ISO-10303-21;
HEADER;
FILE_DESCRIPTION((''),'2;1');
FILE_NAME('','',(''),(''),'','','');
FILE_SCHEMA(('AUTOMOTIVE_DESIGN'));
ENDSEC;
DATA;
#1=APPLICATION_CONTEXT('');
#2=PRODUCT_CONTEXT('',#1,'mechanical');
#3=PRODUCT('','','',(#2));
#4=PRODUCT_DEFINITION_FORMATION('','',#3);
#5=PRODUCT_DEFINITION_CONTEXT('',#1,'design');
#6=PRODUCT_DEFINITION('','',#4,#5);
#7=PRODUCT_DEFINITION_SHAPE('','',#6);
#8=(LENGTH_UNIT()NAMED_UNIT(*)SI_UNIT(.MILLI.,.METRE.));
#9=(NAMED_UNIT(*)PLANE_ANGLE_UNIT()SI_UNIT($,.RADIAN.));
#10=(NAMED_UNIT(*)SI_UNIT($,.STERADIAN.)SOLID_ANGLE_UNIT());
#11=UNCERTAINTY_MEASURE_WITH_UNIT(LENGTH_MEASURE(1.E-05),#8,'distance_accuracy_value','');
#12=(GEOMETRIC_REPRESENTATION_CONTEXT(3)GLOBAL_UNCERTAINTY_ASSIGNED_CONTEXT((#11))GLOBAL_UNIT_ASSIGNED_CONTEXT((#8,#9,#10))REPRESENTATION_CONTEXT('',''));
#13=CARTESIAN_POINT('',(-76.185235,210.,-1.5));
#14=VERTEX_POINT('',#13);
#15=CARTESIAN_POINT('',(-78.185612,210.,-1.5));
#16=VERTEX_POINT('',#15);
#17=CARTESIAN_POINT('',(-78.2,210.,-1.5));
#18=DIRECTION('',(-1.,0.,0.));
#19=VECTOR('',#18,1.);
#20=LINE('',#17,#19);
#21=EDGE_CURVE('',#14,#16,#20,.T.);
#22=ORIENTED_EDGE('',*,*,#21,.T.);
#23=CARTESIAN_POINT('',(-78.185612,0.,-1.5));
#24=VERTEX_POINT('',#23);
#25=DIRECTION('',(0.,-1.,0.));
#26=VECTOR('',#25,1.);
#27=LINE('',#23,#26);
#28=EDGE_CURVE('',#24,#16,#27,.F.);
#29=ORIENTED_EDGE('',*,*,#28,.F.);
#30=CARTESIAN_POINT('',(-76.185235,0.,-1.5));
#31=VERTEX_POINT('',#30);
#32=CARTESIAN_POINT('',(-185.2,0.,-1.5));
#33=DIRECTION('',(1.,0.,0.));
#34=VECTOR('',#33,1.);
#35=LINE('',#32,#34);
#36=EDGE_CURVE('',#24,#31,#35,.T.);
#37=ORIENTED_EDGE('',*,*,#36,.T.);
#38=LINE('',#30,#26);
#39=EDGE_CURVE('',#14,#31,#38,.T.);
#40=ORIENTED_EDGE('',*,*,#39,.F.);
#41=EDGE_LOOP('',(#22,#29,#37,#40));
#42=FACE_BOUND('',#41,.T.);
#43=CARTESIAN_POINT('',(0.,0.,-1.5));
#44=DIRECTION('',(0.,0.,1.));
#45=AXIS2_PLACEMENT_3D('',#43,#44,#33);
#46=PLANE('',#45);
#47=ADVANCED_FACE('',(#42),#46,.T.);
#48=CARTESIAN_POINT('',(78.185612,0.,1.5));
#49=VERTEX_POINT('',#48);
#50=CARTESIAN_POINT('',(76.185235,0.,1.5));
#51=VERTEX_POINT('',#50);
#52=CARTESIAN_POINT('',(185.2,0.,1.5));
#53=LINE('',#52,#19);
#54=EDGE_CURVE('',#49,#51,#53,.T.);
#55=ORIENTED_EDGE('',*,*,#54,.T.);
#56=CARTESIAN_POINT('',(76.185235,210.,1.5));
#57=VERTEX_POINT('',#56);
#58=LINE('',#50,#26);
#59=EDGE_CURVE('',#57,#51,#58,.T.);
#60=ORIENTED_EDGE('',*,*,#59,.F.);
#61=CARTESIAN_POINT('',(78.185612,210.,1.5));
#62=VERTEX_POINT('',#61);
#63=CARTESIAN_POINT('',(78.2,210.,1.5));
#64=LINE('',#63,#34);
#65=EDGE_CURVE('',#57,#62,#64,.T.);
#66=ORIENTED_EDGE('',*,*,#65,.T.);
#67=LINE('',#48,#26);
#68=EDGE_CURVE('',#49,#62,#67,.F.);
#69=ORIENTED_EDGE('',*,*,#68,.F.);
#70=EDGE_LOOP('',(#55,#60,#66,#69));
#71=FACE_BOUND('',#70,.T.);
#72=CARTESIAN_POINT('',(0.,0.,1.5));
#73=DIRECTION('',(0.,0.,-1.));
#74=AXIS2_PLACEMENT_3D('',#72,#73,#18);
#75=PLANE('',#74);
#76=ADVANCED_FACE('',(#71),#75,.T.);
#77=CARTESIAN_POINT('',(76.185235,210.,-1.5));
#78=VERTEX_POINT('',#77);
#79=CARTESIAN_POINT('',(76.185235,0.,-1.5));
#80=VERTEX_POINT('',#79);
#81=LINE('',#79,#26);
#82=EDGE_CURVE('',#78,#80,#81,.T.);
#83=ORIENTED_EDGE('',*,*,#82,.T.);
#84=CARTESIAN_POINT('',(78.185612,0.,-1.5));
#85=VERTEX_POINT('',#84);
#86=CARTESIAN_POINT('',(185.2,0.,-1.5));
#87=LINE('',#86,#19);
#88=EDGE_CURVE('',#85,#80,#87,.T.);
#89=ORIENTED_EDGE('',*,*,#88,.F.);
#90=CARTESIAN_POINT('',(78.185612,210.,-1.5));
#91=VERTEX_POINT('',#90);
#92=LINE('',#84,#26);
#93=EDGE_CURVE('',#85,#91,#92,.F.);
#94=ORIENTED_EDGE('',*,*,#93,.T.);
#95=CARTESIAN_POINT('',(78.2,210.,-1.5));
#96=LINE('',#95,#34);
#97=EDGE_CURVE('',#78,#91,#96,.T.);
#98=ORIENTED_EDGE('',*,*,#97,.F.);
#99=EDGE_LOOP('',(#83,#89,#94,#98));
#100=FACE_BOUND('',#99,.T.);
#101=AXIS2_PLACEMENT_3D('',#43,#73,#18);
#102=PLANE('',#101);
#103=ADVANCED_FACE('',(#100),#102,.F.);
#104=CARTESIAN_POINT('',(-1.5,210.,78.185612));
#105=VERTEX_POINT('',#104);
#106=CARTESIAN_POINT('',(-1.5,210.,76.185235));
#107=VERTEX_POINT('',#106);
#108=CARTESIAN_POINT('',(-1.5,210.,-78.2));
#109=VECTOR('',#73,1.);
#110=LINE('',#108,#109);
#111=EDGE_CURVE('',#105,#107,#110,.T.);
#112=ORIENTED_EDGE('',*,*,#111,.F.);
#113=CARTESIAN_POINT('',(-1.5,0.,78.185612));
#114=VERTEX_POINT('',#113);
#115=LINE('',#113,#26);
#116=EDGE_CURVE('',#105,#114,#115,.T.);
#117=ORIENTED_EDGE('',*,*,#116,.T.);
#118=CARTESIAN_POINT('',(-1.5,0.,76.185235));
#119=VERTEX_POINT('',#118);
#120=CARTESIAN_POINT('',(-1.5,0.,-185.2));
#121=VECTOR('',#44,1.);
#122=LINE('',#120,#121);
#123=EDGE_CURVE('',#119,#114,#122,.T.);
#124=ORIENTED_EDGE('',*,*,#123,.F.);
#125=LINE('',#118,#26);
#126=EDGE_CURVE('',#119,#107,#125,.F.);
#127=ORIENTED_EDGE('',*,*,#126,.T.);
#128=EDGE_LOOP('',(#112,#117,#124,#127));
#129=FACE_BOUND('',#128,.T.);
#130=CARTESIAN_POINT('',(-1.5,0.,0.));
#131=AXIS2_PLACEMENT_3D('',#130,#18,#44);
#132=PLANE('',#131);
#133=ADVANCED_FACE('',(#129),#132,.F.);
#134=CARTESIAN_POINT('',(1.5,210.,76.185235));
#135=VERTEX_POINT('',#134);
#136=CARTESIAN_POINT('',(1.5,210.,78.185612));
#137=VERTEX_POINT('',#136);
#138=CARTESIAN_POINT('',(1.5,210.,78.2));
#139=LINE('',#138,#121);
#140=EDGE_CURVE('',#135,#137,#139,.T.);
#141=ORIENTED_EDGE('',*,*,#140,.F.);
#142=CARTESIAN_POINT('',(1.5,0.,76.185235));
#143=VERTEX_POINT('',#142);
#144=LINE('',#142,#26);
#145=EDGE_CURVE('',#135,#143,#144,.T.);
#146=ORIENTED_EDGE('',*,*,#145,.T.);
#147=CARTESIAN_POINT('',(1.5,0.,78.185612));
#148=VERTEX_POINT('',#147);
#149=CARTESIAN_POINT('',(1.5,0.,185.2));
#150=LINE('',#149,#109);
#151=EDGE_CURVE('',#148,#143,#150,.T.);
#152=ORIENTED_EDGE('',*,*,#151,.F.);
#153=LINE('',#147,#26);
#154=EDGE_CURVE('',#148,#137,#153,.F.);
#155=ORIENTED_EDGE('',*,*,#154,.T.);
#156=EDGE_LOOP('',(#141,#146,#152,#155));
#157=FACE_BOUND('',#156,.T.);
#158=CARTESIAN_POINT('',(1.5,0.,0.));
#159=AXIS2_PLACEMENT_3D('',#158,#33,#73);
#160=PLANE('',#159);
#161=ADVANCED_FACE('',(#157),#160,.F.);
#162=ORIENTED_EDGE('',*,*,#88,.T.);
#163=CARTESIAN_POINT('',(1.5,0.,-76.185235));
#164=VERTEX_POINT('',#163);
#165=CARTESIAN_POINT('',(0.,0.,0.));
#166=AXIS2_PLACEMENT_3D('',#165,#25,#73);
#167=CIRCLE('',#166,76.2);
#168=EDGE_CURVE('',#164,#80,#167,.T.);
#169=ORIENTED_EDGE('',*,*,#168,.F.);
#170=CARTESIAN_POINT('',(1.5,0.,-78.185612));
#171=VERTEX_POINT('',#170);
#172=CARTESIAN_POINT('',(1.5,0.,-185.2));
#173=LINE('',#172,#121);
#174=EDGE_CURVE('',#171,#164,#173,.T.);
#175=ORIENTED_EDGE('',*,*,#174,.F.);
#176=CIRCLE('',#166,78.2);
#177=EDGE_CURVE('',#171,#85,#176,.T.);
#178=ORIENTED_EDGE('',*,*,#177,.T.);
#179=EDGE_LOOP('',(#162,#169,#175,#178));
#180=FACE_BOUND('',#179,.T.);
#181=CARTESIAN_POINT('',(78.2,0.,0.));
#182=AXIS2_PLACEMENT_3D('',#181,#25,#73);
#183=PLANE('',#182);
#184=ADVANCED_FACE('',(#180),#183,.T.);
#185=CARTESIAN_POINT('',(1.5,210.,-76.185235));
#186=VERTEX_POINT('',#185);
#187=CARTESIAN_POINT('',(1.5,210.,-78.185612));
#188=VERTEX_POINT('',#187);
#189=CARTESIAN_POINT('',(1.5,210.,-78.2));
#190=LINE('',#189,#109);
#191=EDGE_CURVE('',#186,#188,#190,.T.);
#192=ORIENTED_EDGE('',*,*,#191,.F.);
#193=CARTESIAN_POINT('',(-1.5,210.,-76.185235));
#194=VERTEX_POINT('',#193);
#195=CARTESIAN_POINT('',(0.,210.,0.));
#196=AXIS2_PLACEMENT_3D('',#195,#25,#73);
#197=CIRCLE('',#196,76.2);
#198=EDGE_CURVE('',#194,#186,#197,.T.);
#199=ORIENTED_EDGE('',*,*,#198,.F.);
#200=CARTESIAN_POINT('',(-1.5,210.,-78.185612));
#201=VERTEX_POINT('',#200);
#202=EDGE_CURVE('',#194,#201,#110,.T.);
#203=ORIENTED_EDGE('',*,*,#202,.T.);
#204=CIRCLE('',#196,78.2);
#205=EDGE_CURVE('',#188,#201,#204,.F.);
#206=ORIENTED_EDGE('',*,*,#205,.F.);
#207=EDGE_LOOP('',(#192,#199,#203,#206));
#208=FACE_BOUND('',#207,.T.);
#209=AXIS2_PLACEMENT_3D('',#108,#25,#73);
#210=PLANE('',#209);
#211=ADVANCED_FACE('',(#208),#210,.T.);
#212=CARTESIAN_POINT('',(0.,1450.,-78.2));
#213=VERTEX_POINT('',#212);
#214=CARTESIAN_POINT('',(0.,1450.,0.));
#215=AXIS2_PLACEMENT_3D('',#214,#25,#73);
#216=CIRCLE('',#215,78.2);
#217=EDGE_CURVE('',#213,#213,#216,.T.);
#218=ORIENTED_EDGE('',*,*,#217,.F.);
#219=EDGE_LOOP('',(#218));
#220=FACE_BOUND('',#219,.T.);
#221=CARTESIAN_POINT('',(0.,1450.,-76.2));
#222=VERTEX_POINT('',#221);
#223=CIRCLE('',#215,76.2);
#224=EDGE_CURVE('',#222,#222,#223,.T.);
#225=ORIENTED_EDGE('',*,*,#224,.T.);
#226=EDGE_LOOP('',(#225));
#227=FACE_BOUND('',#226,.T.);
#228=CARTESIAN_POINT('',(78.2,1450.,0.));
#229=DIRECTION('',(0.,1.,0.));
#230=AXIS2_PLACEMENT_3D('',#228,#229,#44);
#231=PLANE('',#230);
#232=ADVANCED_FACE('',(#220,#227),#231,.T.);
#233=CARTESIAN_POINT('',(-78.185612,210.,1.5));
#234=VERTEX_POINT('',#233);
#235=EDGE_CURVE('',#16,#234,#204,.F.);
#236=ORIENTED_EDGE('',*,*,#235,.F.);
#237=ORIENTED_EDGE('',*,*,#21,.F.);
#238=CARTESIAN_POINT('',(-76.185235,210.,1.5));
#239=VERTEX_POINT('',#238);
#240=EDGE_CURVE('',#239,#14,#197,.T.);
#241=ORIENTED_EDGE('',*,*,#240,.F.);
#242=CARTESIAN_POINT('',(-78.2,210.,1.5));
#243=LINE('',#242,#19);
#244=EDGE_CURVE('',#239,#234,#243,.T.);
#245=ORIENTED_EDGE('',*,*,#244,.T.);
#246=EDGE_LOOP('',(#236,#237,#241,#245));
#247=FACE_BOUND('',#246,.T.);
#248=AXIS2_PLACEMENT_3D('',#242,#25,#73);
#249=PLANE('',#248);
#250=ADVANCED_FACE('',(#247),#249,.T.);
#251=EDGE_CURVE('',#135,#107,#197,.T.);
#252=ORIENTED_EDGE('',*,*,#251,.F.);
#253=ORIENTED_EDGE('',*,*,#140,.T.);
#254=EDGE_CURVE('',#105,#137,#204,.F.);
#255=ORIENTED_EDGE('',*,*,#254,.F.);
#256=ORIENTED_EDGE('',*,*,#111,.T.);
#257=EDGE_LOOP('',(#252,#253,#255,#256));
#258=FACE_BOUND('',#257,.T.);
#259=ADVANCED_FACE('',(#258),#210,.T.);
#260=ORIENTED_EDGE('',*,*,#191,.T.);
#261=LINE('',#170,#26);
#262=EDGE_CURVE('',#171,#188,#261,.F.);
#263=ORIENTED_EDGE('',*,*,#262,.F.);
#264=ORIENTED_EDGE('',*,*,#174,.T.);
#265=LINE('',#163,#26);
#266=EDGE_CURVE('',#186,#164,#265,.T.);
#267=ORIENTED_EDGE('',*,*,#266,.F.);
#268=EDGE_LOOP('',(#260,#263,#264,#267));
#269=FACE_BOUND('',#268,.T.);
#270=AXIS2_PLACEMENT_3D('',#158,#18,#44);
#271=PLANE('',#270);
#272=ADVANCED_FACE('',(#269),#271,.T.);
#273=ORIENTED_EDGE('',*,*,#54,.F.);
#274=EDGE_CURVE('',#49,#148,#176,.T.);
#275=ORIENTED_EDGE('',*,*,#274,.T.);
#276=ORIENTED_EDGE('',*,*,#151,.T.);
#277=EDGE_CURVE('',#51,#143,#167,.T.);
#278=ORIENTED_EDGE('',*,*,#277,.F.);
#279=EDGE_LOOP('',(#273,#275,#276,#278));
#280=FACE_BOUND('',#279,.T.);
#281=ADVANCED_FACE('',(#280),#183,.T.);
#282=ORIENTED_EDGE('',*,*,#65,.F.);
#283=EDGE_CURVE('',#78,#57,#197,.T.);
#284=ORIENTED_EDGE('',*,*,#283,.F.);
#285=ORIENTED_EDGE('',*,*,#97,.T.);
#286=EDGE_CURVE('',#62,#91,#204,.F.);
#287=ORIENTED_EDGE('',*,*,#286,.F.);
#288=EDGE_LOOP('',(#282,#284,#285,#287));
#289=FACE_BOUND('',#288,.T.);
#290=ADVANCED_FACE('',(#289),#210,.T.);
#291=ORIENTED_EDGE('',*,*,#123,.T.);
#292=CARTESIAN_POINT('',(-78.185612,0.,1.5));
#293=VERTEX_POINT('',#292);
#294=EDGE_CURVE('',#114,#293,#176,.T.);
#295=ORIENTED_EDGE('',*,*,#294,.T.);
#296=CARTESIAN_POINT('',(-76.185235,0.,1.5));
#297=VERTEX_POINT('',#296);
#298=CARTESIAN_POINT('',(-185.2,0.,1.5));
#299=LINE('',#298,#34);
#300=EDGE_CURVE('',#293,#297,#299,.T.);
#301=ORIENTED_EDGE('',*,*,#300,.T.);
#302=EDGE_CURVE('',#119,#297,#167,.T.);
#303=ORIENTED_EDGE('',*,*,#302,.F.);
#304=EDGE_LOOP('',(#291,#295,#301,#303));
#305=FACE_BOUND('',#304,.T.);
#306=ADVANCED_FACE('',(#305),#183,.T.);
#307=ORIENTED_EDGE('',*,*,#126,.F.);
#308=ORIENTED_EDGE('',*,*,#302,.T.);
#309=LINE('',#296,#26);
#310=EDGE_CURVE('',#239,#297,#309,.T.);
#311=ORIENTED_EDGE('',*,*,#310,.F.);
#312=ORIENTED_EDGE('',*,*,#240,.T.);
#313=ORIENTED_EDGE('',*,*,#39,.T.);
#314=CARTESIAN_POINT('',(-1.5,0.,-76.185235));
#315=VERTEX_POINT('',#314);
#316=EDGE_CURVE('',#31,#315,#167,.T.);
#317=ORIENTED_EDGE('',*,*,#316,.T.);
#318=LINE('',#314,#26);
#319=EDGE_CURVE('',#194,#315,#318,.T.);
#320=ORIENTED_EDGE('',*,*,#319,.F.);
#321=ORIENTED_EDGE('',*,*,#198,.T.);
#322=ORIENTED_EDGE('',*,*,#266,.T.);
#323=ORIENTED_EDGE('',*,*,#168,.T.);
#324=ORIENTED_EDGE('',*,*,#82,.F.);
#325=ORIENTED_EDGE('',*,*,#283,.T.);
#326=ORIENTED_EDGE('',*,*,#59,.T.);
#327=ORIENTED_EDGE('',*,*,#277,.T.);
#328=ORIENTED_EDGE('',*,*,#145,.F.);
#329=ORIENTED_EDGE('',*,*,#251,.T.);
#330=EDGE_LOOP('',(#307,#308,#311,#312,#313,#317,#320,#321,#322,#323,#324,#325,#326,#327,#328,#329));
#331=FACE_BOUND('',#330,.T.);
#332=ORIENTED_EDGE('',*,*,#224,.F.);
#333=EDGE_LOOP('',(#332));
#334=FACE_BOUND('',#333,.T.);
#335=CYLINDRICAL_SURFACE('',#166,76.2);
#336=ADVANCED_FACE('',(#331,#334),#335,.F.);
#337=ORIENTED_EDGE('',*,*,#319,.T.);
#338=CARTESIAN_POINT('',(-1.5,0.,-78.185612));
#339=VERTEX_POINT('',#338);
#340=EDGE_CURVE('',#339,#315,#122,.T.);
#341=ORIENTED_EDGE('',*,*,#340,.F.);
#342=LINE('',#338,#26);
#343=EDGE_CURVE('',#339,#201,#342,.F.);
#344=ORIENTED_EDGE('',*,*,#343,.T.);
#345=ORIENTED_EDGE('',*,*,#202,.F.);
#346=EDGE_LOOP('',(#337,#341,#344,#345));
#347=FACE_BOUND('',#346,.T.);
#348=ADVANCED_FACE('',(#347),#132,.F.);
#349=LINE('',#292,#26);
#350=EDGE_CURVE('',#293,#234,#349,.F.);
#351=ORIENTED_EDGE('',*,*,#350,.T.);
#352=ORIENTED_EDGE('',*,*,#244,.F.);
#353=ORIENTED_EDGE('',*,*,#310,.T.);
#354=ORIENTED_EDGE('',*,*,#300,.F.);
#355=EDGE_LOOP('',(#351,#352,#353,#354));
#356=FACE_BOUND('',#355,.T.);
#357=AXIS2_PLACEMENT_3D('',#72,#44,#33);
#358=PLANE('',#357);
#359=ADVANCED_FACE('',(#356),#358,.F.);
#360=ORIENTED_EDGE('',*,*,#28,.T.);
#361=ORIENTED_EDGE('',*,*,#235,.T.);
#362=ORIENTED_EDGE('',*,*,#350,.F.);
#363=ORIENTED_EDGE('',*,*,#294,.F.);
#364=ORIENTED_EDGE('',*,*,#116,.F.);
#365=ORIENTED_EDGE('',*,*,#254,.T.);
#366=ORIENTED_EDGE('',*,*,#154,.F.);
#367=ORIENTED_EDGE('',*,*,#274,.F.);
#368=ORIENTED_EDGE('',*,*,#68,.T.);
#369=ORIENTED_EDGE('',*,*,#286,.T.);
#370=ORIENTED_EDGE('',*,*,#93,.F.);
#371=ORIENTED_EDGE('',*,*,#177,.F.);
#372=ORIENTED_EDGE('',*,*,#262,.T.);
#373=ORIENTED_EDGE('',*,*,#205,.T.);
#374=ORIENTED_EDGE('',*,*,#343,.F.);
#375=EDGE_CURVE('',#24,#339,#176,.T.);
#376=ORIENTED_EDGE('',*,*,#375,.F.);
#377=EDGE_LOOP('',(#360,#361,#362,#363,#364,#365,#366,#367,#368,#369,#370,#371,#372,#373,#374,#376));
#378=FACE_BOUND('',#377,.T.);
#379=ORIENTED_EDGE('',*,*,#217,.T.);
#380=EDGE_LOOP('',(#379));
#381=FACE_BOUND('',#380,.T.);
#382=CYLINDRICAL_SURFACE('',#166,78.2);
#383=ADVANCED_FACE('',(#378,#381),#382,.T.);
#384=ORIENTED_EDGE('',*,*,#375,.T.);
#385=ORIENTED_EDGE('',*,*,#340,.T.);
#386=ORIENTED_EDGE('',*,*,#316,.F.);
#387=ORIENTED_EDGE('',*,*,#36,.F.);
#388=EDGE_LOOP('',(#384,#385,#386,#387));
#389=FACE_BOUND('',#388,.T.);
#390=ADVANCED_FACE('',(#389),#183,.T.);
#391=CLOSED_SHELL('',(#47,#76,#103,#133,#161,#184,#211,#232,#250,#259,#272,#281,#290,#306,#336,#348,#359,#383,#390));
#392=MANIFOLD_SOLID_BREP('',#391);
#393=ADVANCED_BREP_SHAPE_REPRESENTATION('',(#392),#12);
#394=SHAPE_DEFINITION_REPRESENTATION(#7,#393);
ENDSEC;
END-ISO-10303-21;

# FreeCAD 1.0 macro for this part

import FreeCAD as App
import Part
import Sketcher
from FreeCAD import Vector


def add_polygon(sketch, points):
    """Adds a closed chain of lines whose ends are joined by coincident constraints."""
    first, n = sketch.GeometryCount, len(points)
    for a, b in zip(points, points[1:] + points[:1]):
        sketch.addGeometry(Part.LineSegment(App.Vector(*a, 0), App.Vector(*b, 0)), False)
    for i in range(n):
        sketch.addConstraint(Sketcher.Constraint("Coincident", first + i, 2, first + (i + 1) % n, 1))

doc = App.newDocument("Part")
body = doc.addObject("PartDesign::Body", "Body")

# Sketch on XY plane
sketch1 = doc.addObject("Sketcher::SketchObject", "Sketch")
body.addObject(sketch1)
sketch1.AttachmentSupport = (doc.XY_Plane, [""])
sketch1.MapMode = "FlatFace"
add_polygon(sketch1, [(76.2, 1450), (76.2, 0), (78.2, 0), (78.2, 1450)])  # lines 0-3
sketch1.addConstraint(Sketcher.Constraint("Vertical", 0))
sketch1.addConstraint(Sketcher.Constraint("Horizontal", 1))
sketch1.addConstraint(Sketcher.Constraint("Vertical", 2))
sketch1.addConstraint(Sketcher.Constraint("Horizontal", 3))
sketch1.addConstraint(Sketcher.Constraint("PointOnObject", 0, 2, -1))
sketch1.addConstraint(Sketcher.Constraint("DistanceX", 1, 1, 1, 2, 2.0))
sketch1.addConstraint(Sketcher.Constraint("DistanceY", 0, 2, 0, 1, 1450.0))
sketch1.addConstraint(Sketcher.Constraint("DistanceX", -1, 1, 0, 2, 76.2))
revolution = doc.addObject("PartDesign::Revolution", "Revolution")
body.addObject(revolution)
revolution.Profile = sketch1
revolution.ReferenceAxis = (sketch1, ["V_Axis"])
revolution.Angle = 360

# Sketch on XY plane
sketch2 = doc.addObject("Sketcher::SketchObject", "Sketch001")
body.addObject(sketch2)
sketch2.AttachmentSupport = (doc.XY_Plane, [""])
sketch2.MapMode = "FlatFace"
add_polygon(sketch2, [(-185, 150), (-185, 0), (0, 0), (0, 210), (-78, 210)])  # lines 0-4
sketch2.addConstraint(Sketcher.Constraint("Vertical", 0))
sketch2.addConstraint(Sketcher.Constraint("Horizontal", 1))
sketch2.addConstraint(Sketcher.Constraint("Vertical", 2))
sketch2.addConstraint(Sketcher.Constraint("Horizontal", 3))
sketch2.addConstraint(Sketcher.Constraint("Coincident", 1, 2, -1, 1))
sketch2.addConstraint(Sketcher.Constraint("DistanceY", 0, 2, 0, 1, 150.0))
sketch2.addConstraint(Sketcher.Constraint("DistanceY", 2, 1, 2, 2, 210.0))
sketch2.addConstraint(Sketcher.Constraint("DistanceX", 1, 1, 1, 2, 185.2))
sketch2.addConstraint(Sketcher.Constraint("DistanceX", 3, 2, 3, 1, 78.2))
pocket1 = doc.addObject("PartDesign::Pocket", "Pocket")
body.addObject(pocket1)
pocket1.Profile = sketch2
pocket1.Length = 3
pocket1.Midplane = True
doc.recompute()

polarpattern = doc.addObject("PartDesign::PolarPattern", "PolarPattern")
body.addObject(polarpattern)
polarpattern.Originals = [pocket1]
polarpattern.Axis = (doc.Y_Axis, [""])
polarpattern.Angle = 360
polarpattern.Occurrences = 4
body.Tip = polarpattern

doc.recompute()
